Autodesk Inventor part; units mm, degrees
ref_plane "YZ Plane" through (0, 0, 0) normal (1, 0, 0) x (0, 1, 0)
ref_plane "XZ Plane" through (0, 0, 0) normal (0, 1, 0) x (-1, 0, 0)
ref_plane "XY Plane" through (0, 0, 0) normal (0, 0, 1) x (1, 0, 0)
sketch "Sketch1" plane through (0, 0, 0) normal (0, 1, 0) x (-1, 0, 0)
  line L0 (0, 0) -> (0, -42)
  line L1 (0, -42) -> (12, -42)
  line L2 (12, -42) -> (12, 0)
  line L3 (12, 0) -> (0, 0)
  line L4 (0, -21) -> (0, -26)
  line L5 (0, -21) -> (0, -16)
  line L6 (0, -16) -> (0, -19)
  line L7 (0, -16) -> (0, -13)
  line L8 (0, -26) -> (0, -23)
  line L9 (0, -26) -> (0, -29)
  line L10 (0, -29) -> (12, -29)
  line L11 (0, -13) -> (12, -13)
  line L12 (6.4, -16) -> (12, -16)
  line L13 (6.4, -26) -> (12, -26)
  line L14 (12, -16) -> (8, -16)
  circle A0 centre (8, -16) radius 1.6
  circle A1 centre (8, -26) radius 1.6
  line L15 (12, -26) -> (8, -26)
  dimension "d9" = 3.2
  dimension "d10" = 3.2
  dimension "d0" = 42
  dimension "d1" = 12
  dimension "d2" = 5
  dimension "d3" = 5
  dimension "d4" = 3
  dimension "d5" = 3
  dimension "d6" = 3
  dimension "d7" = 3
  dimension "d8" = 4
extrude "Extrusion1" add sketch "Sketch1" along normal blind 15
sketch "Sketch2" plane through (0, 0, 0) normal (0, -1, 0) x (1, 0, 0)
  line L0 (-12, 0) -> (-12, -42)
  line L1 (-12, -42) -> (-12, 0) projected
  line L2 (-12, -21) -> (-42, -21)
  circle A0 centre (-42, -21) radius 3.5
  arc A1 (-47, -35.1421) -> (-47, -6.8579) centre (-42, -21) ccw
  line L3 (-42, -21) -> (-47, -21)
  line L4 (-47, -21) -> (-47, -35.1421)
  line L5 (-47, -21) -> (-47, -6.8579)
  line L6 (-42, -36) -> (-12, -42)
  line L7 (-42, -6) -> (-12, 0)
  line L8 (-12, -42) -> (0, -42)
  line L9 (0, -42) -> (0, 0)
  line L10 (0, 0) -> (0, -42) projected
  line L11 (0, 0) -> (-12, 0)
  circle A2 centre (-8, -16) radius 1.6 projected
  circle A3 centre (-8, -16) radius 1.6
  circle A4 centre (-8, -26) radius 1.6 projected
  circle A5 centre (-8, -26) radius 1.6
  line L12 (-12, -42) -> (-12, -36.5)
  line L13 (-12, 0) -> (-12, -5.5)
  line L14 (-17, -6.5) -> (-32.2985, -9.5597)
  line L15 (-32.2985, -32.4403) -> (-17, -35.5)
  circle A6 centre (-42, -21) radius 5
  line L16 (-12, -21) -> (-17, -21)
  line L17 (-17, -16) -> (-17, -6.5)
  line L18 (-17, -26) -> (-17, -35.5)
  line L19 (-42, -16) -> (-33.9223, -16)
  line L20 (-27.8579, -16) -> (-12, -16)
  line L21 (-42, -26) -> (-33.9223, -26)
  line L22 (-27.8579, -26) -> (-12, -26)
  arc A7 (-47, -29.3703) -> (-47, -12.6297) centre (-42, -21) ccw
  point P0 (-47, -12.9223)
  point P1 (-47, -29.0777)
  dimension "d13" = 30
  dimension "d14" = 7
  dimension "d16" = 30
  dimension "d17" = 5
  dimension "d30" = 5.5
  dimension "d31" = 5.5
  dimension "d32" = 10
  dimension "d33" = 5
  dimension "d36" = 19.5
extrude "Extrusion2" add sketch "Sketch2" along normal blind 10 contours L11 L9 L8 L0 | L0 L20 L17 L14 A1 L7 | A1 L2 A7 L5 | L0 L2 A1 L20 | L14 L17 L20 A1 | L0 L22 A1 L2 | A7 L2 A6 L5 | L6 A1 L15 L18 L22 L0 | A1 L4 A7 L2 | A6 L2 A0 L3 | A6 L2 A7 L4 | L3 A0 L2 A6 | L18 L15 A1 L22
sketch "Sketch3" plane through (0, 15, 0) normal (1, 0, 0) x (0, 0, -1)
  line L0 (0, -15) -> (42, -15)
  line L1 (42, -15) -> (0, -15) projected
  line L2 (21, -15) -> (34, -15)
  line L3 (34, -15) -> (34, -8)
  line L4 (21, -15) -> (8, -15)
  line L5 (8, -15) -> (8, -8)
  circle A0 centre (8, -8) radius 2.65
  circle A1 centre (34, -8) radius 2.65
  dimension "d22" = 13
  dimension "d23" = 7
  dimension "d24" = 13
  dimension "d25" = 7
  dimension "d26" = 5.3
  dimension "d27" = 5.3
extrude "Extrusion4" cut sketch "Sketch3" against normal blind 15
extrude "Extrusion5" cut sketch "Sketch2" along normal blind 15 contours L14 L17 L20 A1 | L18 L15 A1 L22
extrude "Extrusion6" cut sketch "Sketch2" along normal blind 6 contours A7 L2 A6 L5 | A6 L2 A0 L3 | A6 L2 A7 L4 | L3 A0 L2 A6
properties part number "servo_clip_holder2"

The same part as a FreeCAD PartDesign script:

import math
import FreeCAD as App
import Part
import Sketcher
from FreeCAD import Vector
Q = App.Units.Quantity


def add_polygon(sketch, points):
    """Adds a closed chain of lines whose ends are joined by coincident constraints."""
    first, n = sketch.GeometryCount, len(points)
    for a, b in zip(points, points[1:] + points[:1]):
        sketch.addGeometry(Part.LineSegment(App.Vector(*a, 0), App.Vector(*b, 0)), False)
    for i in range(n):
        sketch.addConstraint(Sketcher.Constraint("Coincident", first + i, 2, first + (i + 1) % n, 1))

doc = App.newDocument("Part")
body = doc.addObject("PartDesign::Body", "Body")

# Sketch on XZ plane
sketch1 = body.newObject("Sketcher::SketchObject", "Sketch")
sketch1.AttachmentSupport = (doc.getObject("XZ_Plane"), [""])
sketch1.MapMode = "FlatFace"
add_polygon(sketch1, [(-12, 0), (0, 0), (0, -42), (-12, -42), (-12, -26), (-12, -16)])  # lines 0-5
sketch1.addGeometry(Part.Circle(Vector(-8, -26, 0), Vector(0, 0, 1), 1.6), False)  # 6
sketch1.addGeometry(Part.Circle(Vector(-8, -16, 0), Vector(0, 0, 1), 1.6), False)  # 7
sketch1.addConstraint([
    Sketcher.Constraint("Horizontal", 0),
    Sketcher.Constraint("Vertical", 1),
    Sketcher.Constraint("Horizontal", 2),
    Sketcher.Constraint("Vertical", 3),
    Sketcher.Constraint("Vertical", 4),
    Sketcher.Constraint("Vertical", 5),
    Sketcher.Constraint("Coincident", 0, 2, -1, 1),
    Sketcher.Constraint("Equal", 6, 7),
    Sketcher.Constraint("Horizontal", 6, 3, 3, 2),
    Sketcher.Constraint("Horizontal", 7, 3, 4, 2),
    Sketcher.Constraint("Vertical", 6, 3, 7, 3),
    Sketcher.Constraint("Equal", 3, 5),
    Sketcher.Constraint("Diameter", 6, Q("3.2 mm")),
    Sketcher.Constraint("DistanceX", 0, 1, 0, 2, Q("12 mm")),
    Sketcher.Constraint("DistanceY", 1, 2, 1, 1, Q("42 mm")),
    Sketcher.Constraint("DistanceX", 2, 2, 6, 3, Q("4 mm")),
    Sketcher.Constraint("DistanceY", 3, 1, 3, 2, Q("16 mm")),
])
pad1 = body.newObject("PartDesign::Pad", "Pad")
pad1.Profile = sketch1
pad1.Length = 15
pad1.Reversed = True

# Sketch on XZ plane
sketch2 = body.newObject("Sketcher::SketchObject", "Sketch001")
sketch2.AttachmentSupport = (doc.getObject("XZ_Plane"), [""])
sketch2.MapMode = "FlatFace"
sketch2.addGeometry([
    Part.LineSegment(Vector(0, 0, 0), Vector(-12, 0, 0)),  # 0
    Part.LineSegment(Vector(-12, 0, 0), Vector(-42, -6, 0)),  # 1
    Part.ArcOfCircle(Part.Circle(Vector(-42, -21, 0), Vector(0, 0, 1), 15), math.radians(90), math.radians(109.47)),  # 2
    Part.LineSegment(Vector(-47, -6.9, 0), Vector(-47, -35.1, 0)),  # 3
    Part.ArcOfCircle(Part.Circle(Vector(-42, -21, 0), Vector(0, 0, 1), 15), math.radians(-109.47), math.radians(-90)),  # 4
    Part.LineSegment(Vector(-42, -36, 0), Vector(-12, -42, 0)),  # 5
    Part.LineSegment(Vector(-12, -42, 0), Vector(0, -42, 0)),  # 6
    Part.LineSegment(Vector(0, -42, 0), Vector(0, 0, 0)),  # 7
    Part.Circle(Vector(-8, -26, 0), Vector(0, 0, 1), 1.6),  # 8
    Part.Circle(Vector(-8, -16, 0), Vector(0, 0, 1), 1.6),  # 9
    Part.Circle(Vector(-42, -21, 0), Vector(0, 0, 1), 3.5),  # 10
], False)
sketch2.addConstraint([
    Sketcher.Constraint("Coincident", 0, 2, 1, 1),
    Sketcher.Constraint("Coincident", 1, 2, 2, 1),
    Sketcher.Constraint("Coincident", 2, 2, 3, 1),
    Sketcher.Constraint("Coincident", 3, 2, 4, 1),
    Sketcher.Constraint("Coincident", 4, 2, 5, 1),
    Sketcher.Constraint("Coincident", 5, 2, 6, 1),
    Sketcher.Constraint("Coincident", 6, 2, 7, 1),
    Sketcher.Constraint("Coincident", 7, 2, 0, 1),
    Sketcher.Constraint("Horizontal", 0),
    Sketcher.Constraint("Vertical", 3),
    Sketcher.Constraint("Horizontal", 6),
    Sketcher.Constraint("Vertical", 7),
    Sketcher.Constraint("Coincident", 7, 2, -1, 1),
    Sketcher.Constraint("Coincident", 4, 3, 2, 3),
    Sketcher.Constraint("Coincident", 10, 3, 2, 3),
    Sketcher.Constraint("Equal", 2, 4),
    Sketcher.Constraint("Equal", 8, 9),
    Sketcher.Constraint("Vertical", 8, 3, 9, 3),
    Sketcher.Constraint("Vertical", 10, 3, 1, 2),
    Sketcher.Constraint("Vertical", 1, 2, 4, 2),
    Sketcher.Constraint("Vertical", 0, 2, 5, 2),
    Sketcher.Constraint("Equal", 1, 5),
    Sketcher.Constraint("Diameter", 10, Q("7 mm")),
    Sketcher.Constraint("Radius", 2, Q("15 mm")),
    Sketcher.Constraint("DistanceY", 8, 3, 2, 3, Q("5 mm")),
    Sketcher.Constraint("DistanceY", 8, 3, 9, 3, Q("10 mm")),
    Sketcher.Constraint("DistanceX", 2, 3, 0, 2, Q("30 mm")),
    Sketcher.Constraint("DistanceX", 2, 2, 1, 2, Q("5 mm")),
    Sketcher.Constraint("Diameter", 8, Q("3.2 mm")),
    Sketcher.Constraint("DistanceX", 0, 2, 0, 1, Q("12 mm")),
    Sketcher.Constraint("DistanceY", 7, 1, 7, 2, Q("42 mm")),
    Sketcher.Constraint("DistanceX", 8, 3, -1, 1, Q("8 mm")),
])
pad2 = body.newObject("PartDesign::Pad", "Pad001")
pad2.Profile = sketch2
pad2.Length = 10

# Sketch on YZ plane
sketch3 = body.newObject("Sketcher::SketchObject", "Sketch002")
sketch3.AttachmentSupport = (doc.getObject("YZ_Plane"), [""])
sketch3.MapMode = "FlatFace"
sketch3.addGeometry([
    Part.Circle(Vector(7, -34, 0), Vector(0, 0, 1), 2.6),
    Part.Circle(Vector(7, -8, 0), Vector(0, 0, 1), 2.6),
], False)
sketch3.addConstraint([
    Sketcher.Constraint("Equal", 0, 1),
    Sketcher.Constraint("Vertical", 0, 3, 1, 3),
    Sketcher.Constraint("Diameter", 0, Q("5.3 mm")),
    Sketcher.Constraint("DistanceX", -1, 1, 0, 3, Q("7 mm")),
    Sketcher.Constraint("DistanceY", 0, 3, -1, 1, Q("34 mm")),
    Sketcher.Constraint("DistanceY", 1, 3, -1, 1, Q("8 mm")),
])
pocket1 = body.newObject("PartDesign::Pocket", "Pocket")
pocket1.Profile = sketch3
pocket1.Length = 15

# Sketch on XZ plane
sketch4 = body.newObject("Sketcher::SketchObject", "Sketch003")
sketch4.AttachmentSupport = (doc.getObject("XZ_Plane"), [""])
sketch4.MapMode = "FlatFace"
sketch4.addGeometry([
    Part.LineSegment(Vector(-17, -6, 0), Vector(-32, -10, 0)),  # 0
    Part.ArcOfCircle(Part.Circle(Vector(-42, -21, 0), Vector(0, 0, 1), 15), math.radians(19), math.radians(50)),  # 1
    Part.LineSegment(Vector(-28, -16, 0), Vector(-17, -16, 0)),  # 2
    Part.LineSegment(Vector(-17, -16, 0), Vector(-17, -6, 0)),  # 3
    Part.LineSegment(Vector(-17, -36, 0), Vector(-17, -26, 0)),  # 4
    Part.LineSegment(Vector(-17, -26, 0), Vector(-28, -26, 0)),  # 5
    Part.ArcOfCircle(Part.Circle(Vector(-42, -21, 0), Vector(0, 0, 1), 15), math.radians(-50), math.radians(-19)),  # 6
    Part.LineSegment(Vector(-32, -32, 0), Vector(-17, -36, 0)),  # 7
], False)
sketch4.addConstraint([
    Sketcher.Constraint("Coincident", 0, 2, 1, 2),
    Sketcher.Constraint("Coincident", 1, 1, 2, 1),
    Sketcher.Constraint("Coincident", 2, 2, 3, 1),
    Sketcher.Constraint("Coincident", 3, 2, 0, 1),
    Sketcher.Constraint("Coincident", 4, 2, 5, 1),
    Sketcher.Constraint("Coincident", 5, 2, 6, 2),
    Sketcher.Constraint("Coincident", 6, 1, 7, 1),
    Sketcher.Constraint("Coincident", 7, 2, 4, 1),
    Sketcher.Constraint("Horizontal", 2),
    Sketcher.Constraint("Vertical", 3),
    Sketcher.Constraint("Vertical", 4),
    Sketcher.Constraint("Horizontal", 5),
    Sketcher.Constraint("Coincident", 6, 3, 1, 3),
    Sketcher.Constraint("Equal", 1, 6),
    Sketcher.Constraint("Vertical", 3, 2, 4, 2),
    Sketcher.Constraint("Vertical", 1, 1, 5, 2),
    Sketcher.Constraint("Vertical", 0, 2, 6, 1),
    Sketcher.Constraint("Equal", 3, 4),
    Sketcher.Constraint("Radius", 1, Q("15 mm")),
    Sketcher.Constraint("DistanceY", 1, 3, 1, 1, Q("5 mm")),
    Sketcher.Constraint("DistanceY", 4, 2, 3, 2, Q("19.5 mm")),
    Sketcher.Constraint("DistanceX", 1, 3, -1, 1, Q("42 mm")),
    Sketcher.Constraint("DistanceY", 1, 3, -1, 1, Q("21 mm")),
    Sketcher.Constraint("DistanceX", 2, 2, -1, 1, Q("17 mm")),
    Sketcher.Constraint("Angle", 0, Q("-168.69 deg")),
])
pocket2 = body.newObject("PartDesign::Pocket", "Pocket001")
pocket2.Profile = sketch4
pocket2.Length = 15
pocket2.Reversed = True

# Sketch on XZ plane
sketch5 = body.newObject("Sketcher::SketchObject", "Sketch004")
sketch5.AttachmentSupport = (doc.getObject("XZ_Plane"), [""])
sketch5.MapMode = "FlatFace"
sketch5.addGeometry([
    Part.LineSegment(Vector(-47, -12.6, 0), Vector(-47, -29.4, 0)),
    Part.ArcOfCircle(Part.Circle(Vector(-42, -21, 0), Vector(0, 0, 1), 9.7), math.radians(-121), math.radians(121)),
    Part.Circle(Vector(-42, -21, 0), Vector(0, 0, 1), 3.5),
], False)
sketch5.addConstraint([
    Sketcher.Constraint("Coincident", 0, 1, 1, 2),
    Sketcher.Constraint("Coincident", 1, 1, 0, 2),
    Sketcher.Constraint("Vertical", 0),
    Sketcher.Constraint("Coincident", 2, 3, 1, 3),
    Sketcher.Constraint("Diameter", 2, Q("7 mm")),
    Sketcher.Constraint("Radius", 1, Q("9.75 mm")),
    Sketcher.Constraint("DistanceX", 0, 1, 1, 3, Q("5 mm")),
    Sketcher.Constraint("DistanceX", 1, 3, -1, 1, Q("42 mm")),
    Sketcher.Constraint("DistanceY", 1, 3, -1, 1, Q("21 mm")),
])
pocket3 = body.newObject("PartDesign::Pocket", "Pocket002")
pocket3.Profile = sketch5
pocket3.Length = 6
pocket3.Reversed = True

doc.recompute()
